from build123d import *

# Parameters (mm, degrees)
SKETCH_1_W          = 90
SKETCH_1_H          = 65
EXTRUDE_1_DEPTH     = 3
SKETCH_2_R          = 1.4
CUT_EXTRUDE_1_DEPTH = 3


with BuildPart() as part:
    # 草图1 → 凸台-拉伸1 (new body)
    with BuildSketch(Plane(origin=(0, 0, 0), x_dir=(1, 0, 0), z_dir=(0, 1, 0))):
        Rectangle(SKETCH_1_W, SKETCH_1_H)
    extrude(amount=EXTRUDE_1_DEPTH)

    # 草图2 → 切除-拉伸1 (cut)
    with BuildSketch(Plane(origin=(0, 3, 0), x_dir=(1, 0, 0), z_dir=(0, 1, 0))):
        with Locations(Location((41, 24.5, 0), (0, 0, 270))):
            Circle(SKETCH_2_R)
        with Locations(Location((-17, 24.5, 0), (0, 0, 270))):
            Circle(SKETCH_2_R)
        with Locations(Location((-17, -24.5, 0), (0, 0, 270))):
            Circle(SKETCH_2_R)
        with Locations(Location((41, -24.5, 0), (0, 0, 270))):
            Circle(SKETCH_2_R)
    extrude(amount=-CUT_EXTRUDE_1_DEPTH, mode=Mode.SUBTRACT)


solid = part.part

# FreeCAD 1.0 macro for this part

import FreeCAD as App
import Part
import Sketcher
from FreeCAD import Vector
Q = App.Units.Quantity

doc = App.newDocument("Part")
body = doc.addObject("PartDesign::Body", "Body")

# Sketch on XZ plane
sketch1 = body.newObject("Sketcher::SketchObject", "Sketch")
sketch1.AttachmentSupport = (doc.getObject("XZ_Plane"), [""])
sketch1.MapMode = "FlatFace"
sketch1.addGeometry([
    Part.LineSegment(Vector(-45, -32, 0), Vector(-45, 32, 0)),
    Part.LineSegment(Vector(-45, 32, 0), Vector(45, 32, 0)),
    Part.LineSegment(Vector(45, 32, 0), Vector(45, -32, 0)),
    Part.LineSegment(Vector(45, -32, 0), Vector(-45, -32, 0)),
], False)
sketch1.addConstraint([
    Sketcher.Constraint("Coincident", 0, 2, 1, 1),
    Sketcher.Constraint("Coincident", 1, 2, 2, 1),
    Sketcher.Constraint("Coincident", 2, 2, 3, 1),
    Sketcher.Constraint("Coincident", 3, 2, 0, 1),
    Sketcher.Constraint("Vertical", 0),
    Sketcher.Constraint("Horizontal", 1),
    Sketcher.Constraint("Vertical", 2),
    Sketcher.Constraint("Horizontal", 3),
    Sketcher.Constraint("Symmetric", 0, 2, 2, 2, -1, 1),
    Sketcher.Constraint("DistanceX", 1, 1, 1, 2, Q("90 mm")),
    Sketcher.Constraint("DistanceY", 0, 1, 0, 2, Q("65 mm")),
])
pad1 = body.newObject("PartDesign::Pad", "Pad")
pad1.Profile = sketch1
pad1.Length = 3
pad1.Reversed = True

# Sketch on XZ plane
sketch2 = body.newObject("Sketcher::SketchObject", "Sketch001")
sketch2.AttachmentSupport = (doc.getObject("XZ_Plane"), [""])
sketch2.MapMode = "FlatFace"
sketch2.AttachmentOffset = App.Placement(Vector(0, 0, -3), App.Rotation())
sketch2.addGeometry([
    Part.Circle(Vector(41, -24.5, 0), Vector(0, 0, 1), 1.4),
    Part.Circle(Vector(-17, -24.5, 0), Vector(0, 0, 1), 1.4),
    Part.Circle(Vector(-17, 24.5, 0), Vector(0, 0, 1), 1.4),
    Part.Circle(Vector(41, 24.5, 0), Vector(0, 0, 1), 1.4),
], False)
sketch2.addConstraint([
    Sketcher.Constraint("Equal", 0, 1),
    Sketcher.Constraint("Equal", 1, 2),
    Sketcher.Constraint("Equal", 2, 3),
    Sketcher.Constraint("Symmetric", 1, 3, 2, 3, -1),
    Sketcher.Constraint("Symmetric", 0, 3, 3, 3, -1),
    Sketcher.Constraint("Horizontal", 0, 3, 1, 3),
    Sketcher.Constraint("Diameter", 0, Q("2.8 mm")),
    Sketcher.Constraint("DistanceX", -1, 1, 0, 3, Q("41 mm")),
    Sketcher.Constraint("DistanceX", 1, 3, -1, 1, Q("17 mm")),
    Sketcher.Constraint("DistanceY", 1, 3, 2, 3, Q("49 mm")),
])
pocket1 = body.newObject("PartDesign::Pocket", "Pocket")
pocket1.Profile = sketch2
pocket1.Length = 3
pocket1.Reversed = True

doc.recompute()
